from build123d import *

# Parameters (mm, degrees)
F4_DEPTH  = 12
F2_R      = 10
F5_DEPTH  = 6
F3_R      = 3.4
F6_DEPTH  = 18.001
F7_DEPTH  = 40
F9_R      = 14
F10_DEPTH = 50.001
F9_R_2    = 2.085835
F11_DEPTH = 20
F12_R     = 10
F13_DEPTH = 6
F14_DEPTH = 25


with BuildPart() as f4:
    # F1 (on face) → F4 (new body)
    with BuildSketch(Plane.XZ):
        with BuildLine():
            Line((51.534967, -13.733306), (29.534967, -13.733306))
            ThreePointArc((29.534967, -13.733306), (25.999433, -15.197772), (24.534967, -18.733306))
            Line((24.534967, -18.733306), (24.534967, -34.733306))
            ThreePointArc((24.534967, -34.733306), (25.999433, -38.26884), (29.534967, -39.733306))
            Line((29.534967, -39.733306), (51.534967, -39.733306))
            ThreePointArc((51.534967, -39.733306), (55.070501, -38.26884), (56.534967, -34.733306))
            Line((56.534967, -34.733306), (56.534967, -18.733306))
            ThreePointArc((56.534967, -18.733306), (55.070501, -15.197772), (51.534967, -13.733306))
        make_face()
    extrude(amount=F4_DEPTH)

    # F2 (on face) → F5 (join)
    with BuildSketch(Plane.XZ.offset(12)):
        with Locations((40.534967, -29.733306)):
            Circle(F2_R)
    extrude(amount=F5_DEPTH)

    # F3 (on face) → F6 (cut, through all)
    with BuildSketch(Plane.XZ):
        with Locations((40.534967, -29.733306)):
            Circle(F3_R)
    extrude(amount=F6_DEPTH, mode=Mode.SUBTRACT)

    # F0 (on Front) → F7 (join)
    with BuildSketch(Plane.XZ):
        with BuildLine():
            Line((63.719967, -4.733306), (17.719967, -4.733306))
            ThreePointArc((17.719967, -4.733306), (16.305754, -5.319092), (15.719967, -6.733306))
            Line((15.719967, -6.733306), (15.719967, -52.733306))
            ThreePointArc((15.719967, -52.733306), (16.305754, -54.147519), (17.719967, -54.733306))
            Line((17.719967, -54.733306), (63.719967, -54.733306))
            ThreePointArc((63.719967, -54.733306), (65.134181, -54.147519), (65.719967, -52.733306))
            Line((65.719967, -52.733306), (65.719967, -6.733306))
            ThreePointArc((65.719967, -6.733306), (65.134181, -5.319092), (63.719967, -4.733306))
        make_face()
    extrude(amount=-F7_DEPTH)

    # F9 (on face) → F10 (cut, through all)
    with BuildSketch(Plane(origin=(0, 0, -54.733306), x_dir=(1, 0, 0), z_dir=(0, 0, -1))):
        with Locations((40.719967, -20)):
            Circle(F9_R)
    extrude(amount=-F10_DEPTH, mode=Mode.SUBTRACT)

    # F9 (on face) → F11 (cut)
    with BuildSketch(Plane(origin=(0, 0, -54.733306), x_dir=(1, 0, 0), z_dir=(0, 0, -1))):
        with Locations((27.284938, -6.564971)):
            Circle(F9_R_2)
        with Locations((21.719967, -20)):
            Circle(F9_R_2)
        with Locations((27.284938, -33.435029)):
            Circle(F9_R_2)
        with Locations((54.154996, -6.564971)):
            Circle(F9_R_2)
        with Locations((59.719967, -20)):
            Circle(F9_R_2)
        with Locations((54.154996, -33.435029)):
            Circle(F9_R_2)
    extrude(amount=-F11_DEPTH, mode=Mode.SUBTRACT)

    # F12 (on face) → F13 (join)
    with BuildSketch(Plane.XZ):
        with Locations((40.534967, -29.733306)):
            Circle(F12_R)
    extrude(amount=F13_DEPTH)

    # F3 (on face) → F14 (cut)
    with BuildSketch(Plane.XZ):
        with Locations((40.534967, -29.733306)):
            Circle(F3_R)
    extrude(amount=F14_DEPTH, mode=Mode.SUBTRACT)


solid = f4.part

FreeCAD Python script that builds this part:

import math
import FreeCAD as App
import Part
import Sketcher
from FreeCAD import Vector
Q = App.Units.Quantity

doc = App.newDocument("Part")
body = doc.addObject("PartDesign::Body", "Body")

sketch1 = body.newObject("Sketcher::SketchObject", "Sketch")
sketch1.AttachmentSupport = (doc.getObject("XZ_Plane"), [""])
sketch1.MapMode = "FlatFace"
sketch1.addGeometry([
    Part.LineSegment(Vector(51.5, -13.7, 0), Vector(29.5, -13.7, 0)),
    Part.ArcOfCircle(Part.Circle(Vector(29.5, -18.7, 0), Vector(0, 0, 1), 5), math.radians(90), math.radians(180)),
    Part.LineSegment(Vector(24.5, -18.7, 0), Vector(24.5, -34.7, 0)),
    Part.ArcOfCircle(Part.Circle(Vector(29.5, -34.7, 0), Vector(0, 0, 1), 5), math.radians(180), math.radians(270)),
    Part.LineSegment(Vector(29.5, -39.7, 0), Vector(51.5, -39.7, 0)),
    Part.ArcOfCircle(Part.Circle(Vector(51.5, -34.7, 0), Vector(0, 0, 1), 5), math.radians(-90), math.radians(0)),
    Part.LineSegment(Vector(56.5, -34.7, 0), Vector(56.5, -18.7, 0)),
    Part.ArcOfCircle(Part.Circle(Vector(51.5, -18.7, 0), Vector(0, 0, 1), 5), math.radians(0), math.radians(90)),
], False)
sketch1.addConstraint([
    Sketcher.Constraint("Tangent", 0, 2, 1, 1),
    Sketcher.Constraint("Tangent", 1, 2, 2, 1),
    Sketcher.Constraint("Tangent", 2, 2, 3, 1),
    Sketcher.Constraint("Tangent", 3, 2, 4, 1),
    Sketcher.Constraint("Tangent", 4, 2, 5, 1),
    Sketcher.Constraint("Tangent", 5, 2, 6, 1),
    Sketcher.Constraint("Tangent", 6, 2, 7, 1),
    Sketcher.Constraint("Tangent", 7, 2, 0, 1),
    Sketcher.Constraint("Horizontal", 0),
    Sketcher.Constraint("Vertical", 2),
    Sketcher.Constraint("Horizontal", 4),
    Sketcher.Constraint("Vertical", 6),
    Sketcher.Constraint("Equal", 1, 3),
    Sketcher.Constraint("Equal", 3, 5),
    Sketcher.Constraint("Equal", 5, 7),
    Sketcher.Constraint("Radius", 1, Q("5 mm")),
    Sketcher.Constraint("DistanceX", 0, 2, 0, 1, Q("22 mm")),
    Sketcher.Constraint("DistanceY", 2, 2, 2, 1, Q("16 mm")),
    Sketcher.Constraint("DistanceX", -1, 1, 1, 3, Q("29.534967 mm")),
    Sketcher.Constraint("DistanceY", 1, 3, -1, 1, Q("18.733306 mm")),
])
pad1 = body.newObject("PartDesign::Pad", "Pad")
pad1.Profile = sketch1
pad1.Length = 12

sketch2 = body.newObject("Sketcher::SketchObject", "Sketch001")
sketch2.AttachmentSupport = (doc.getObject("XZ_Plane"), [""])
sketch2.MapMode = "FlatFace"
sketch2.AttachmentOffset = App.Placement(Vector(0, 0, 12), App.Rotation())
sketch2.addGeometry(Part.Circle(Vector(41, -30, 0), Vector(0, 0, 1), 10), False)
sketch2.addConstraint([
    Sketcher.Constraint("Diameter", 0, Q("20 mm")),
    Sketcher.Constraint("DistanceX", -1, 1, 0, 3, Q("40.534967 mm")),
    Sketcher.Constraint("DistanceY", 0, 3, -1, 1, Q("29.733306 mm")),
])
pad2 = body.newObject("PartDesign::Pad", "Pad001")
pad2.Profile = sketch2
pad2.Length = 6

sketch3 = body.newObject("Sketcher::SketchObject", "Sketch002")
sketch3.AttachmentSupport = (doc.getObject("XZ_Plane"), [""])
sketch3.MapMode = "FlatFace"
sketch3.addGeometry(Part.Circle(Vector(40.5, -29.7, 0), Vector(0, 0, 1), 3.4), False)
sketch3.addConstraint([
    Sketcher.Constraint("Diameter", 0, Q("6.8 mm")),
    Sketcher.Constraint("DistanceX", -1, 1, 0, 3, Q("40.534967 mm")),
    Sketcher.Constraint("DistanceY", 0, 3, -1, 1, Q("29.733306 mm")),
])
pocket1 = body.newObject("PartDesign::Pocket", "Pocket")
pocket1.Profile = sketch3
pocket1.Type = "ThroughAll"
pocket1.Reversed = True

sketch4 = body.newObject("Sketcher::SketchObject", "Sketch003")
sketch4.AttachmentSupport = (doc.getObject("XZ_Plane"), [""])
sketch4.MapMode = "FlatFace"
sketch4.addGeometry([
    Part.LineSegment(Vector(63.7, -4.7, 0), Vector(17.7, -4.7, 0)),
    Part.ArcOfCircle(Part.Circle(Vector(17.7, -6.7, 0), Vector(0, 0, 1), 2), math.radians(90), math.radians(180)),
    Part.LineSegment(Vector(15.7, -6.7, 0), Vector(15.7, -52.7, 0)),
    Part.ArcOfCircle(Part.Circle(Vector(17.7, -52.7, 0), Vector(0, 0, 1), 2), math.radians(-180), math.radians(-90)),
    Part.LineSegment(Vector(17.7, -54.7, 0), Vector(63.7, -54.7, 0)),
    Part.ArcOfCircle(Part.Circle(Vector(63.7, -52.7, 0), Vector(0, 0, 1), 2), math.radians(-90), math.radians(0)),
    Part.LineSegment(Vector(65.7, -52.7, 0), Vector(65.7, -6.7, 0)),
    Part.ArcOfCircle(Part.Circle(Vector(63.7, -6.7, 0), Vector(0, 0, 1), 2), math.radians(0), math.radians(90)),
], False)
sketch4.addConstraint([
    Sketcher.Constraint("Tangent", 0, 2, 1, 1),
    Sketcher.Constraint("Tangent", 1, 2, 2, 1),
    Sketcher.Constraint("Tangent", 2, 2, 3, 1),
    Sketcher.Constraint("Tangent", 3, 2, 4, 1),
    Sketcher.Constraint("Tangent", 4, 2, 5, 1),
    Sketcher.Constraint("Tangent", 5, 2, 6, 1),
    Sketcher.Constraint("Tangent", 6, 2, 7, 1),
    Sketcher.Constraint("Tangent", 7, 2, 0, 1),
    Sketcher.Constraint("Horizontal", 0),
    Sketcher.Constraint("Vertical", 2),
    Sketcher.Constraint("Horizontal", 4),
    Sketcher.Constraint("Vertical", 6),
    Sketcher.Constraint("Equal", 1, 3),
    Sketcher.Constraint("Equal", 3, 5),
    Sketcher.Constraint("Equal", 5, 7),
    Sketcher.Constraint("Equal", 4, 2),
    Sketcher.Constraint("Radius", 1, Q("2 mm")),
    Sketcher.Constraint("DistanceX", 0, 2, 0, 1, Q("46 mm")),
    Sketcher.Constraint("DistanceX", -1, 1, 3, 3, Q("17.719969 mm")),
    Sketcher.Constraint("DistanceY", 1, 3, -1, 1, Q("6.733306 mm")),
])
pad3 = body.newObject("PartDesign::Pad", "Pad002")
pad3.Profile = sketch4
pad3.Length = 40
pad3.Reversed = True

sketch5 = body.newObject("Sketcher::SketchObject", "Sketch004")
sketch5.AttachmentSupport = (doc.getObject("XY_Plane"), [""])
sketch5.MapMode = "FlatFace"
sketch5.AttachmentOffset = App.Placement(Vector(0, 0, -54.733306), App.Rotation())
sketch5.addGeometry(Part.Circle(Vector(41, 20, 0), Vector(0, 0, 1), 14), False)
sketch5.addConstraint([
    Sketcher.Constraint("Diameter", 0, Q("28 mm")),
    Sketcher.Constraint("DistanceY", -1, 1, 0, 3, Q("20 mm")),
    Sketcher.Constraint("DistanceX", -1, 1, 0, 3, Q("40.719967 mm")),
])
pocket2 = body.newObject("PartDesign::Pocket", "Pocket001")
pocket2.Profile = sketch5
pocket2.Type = "ThroughAll"
pocket2.Reversed = True

sketch6 = body.newObject("Sketcher::SketchObject", "Sketch005")
sketch6.AttachmentSupport = (doc.getObject("XY_Plane"), [""])
sketch6.MapMode = "FlatFace"
sketch6.AttachmentOffset = App.Placement(Vector(0, 0, -54.733306), App.Rotation())
sketch6.addGeometry([
    Part.Circle(Vector(27.3, 6.6, 0), Vector(0, 0, 1), 2.1),
    Part.Circle(Vector(21.7, 20, 0), Vector(0, 0, 1), 2.1),
    Part.Circle(Vector(27.3, 33.4, 0), Vector(0, 0, 1), 2.1),
    Part.Circle(Vector(54.2, 6.6, 0), Vector(0, 0, 1), 2.1),
    Part.Circle(Vector(59.7, 20, 0), Vector(0, 0, 1), 2.1),
    Part.Circle(Vector(54.2, 33.4, 0), Vector(0, 0, 1), 2.1),
], False)
sketch6.addConstraint([
    Sketcher.Constraint("Equal", 0, 1),
    Sketcher.Constraint("Equal", 1, 2),
    Sketcher.Constraint("Equal", 2, 3),
    Sketcher.Constraint("Equal", 3, 4),
    Sketcher.Constraint("Equal", 4, 5),
    Sketcher.Constraint("Horizontal", 0, 3, 3, 3),
    Sketcher.Constraint("Horizontal", 1, 3, 4, 3),
    Sketcher.Constraint("Horizontal", 2, 3, 5, 3),
    Sketcher.Constraint("Vertical", 0, 3, 2, 3),
    Sketcher.Constraint("Vertical", 3, 3, 5, 3),
    Sketcher.Constraint("DistanceY", -1, 1, 1, 3, Q("20 mm")),
    Sketcher.Constraint("DistanceX", 1, 3, 4, 3, Q("38 mm")),
    Sketcher.Constraint("Diameter", 0, Q("4.17167 mm")),
    Sketcher.Constraint("DistanceX", -1, 1, 0, 3, Q("27.284938 mm")),
    Sketcher.Constraint("DistanceY", -1, 1, 0, 3, Q("6.564971 mm")),
    Sketcher.Constraint("DistanceY", -1, 1, 2, 3, Q("33.435029 mm")),
    Sketcher.Constraint("DistanceX", 1, 3, 0, 3, Q("5.564971 mm")),
    Sketcher.Constraint("DistanceX", 1, 3, 3, 3, Q("32.435029 mm")),
])
pocket3 = body.newObject("PartDesign::Pocket", "Pocket002")
pocket3.Profile = sketch6
pocket3.Length = 20
pocket3.Reversed = True

sketch7 = body.newObject("Sketcher::SketchObject", "Sketch006")
sketch7.AttachmentSupport = (doc.getObject("XZ_Plane"), [""])
sketch7.MapMode = "FlatFace"
sketch7.addGeometry(Part.Circle(Vector(41, -30, 0), Vector(0, 0, 1), 10), False)
sketch7.addConstraint([
    Sketcher.Constraint("Diameter", 0, Q("20 mm")),
    Sketcher.Constraint("DistanceX", -1, 1, 0, 3, Q("40.534967 mm")),
    Sketcher.Constraint("DistanceY", 0, 3, -1, 1, Q("29.733306 mm")),
])
pad4 = body.newObject("PartDesign::Pad", "Pad003")
pad4.Profile = sketch7
pad4.Length = 6

sketch8 = body.newObject("Sketcher::SketchObject", "Sketch007")
sketch8.AttachmentSupport = (doc.getObject("XZ_Plane"), [""])
sketch8.MapMode = "FlatFace"
sketch8.addGeometry(Part.Circle(Vector(40.5, -29.7, 0), Vector(0, 0, 1), 3.4), False)
sketch8.addConstraint([
    Sketcher.Constraint("Diameter", 0, Q("6.8 mm")),
    Sketcher.Constraint("DistanceX", -1, 1, 0, 3, Q("40.534967 mm")),
    Sketcher.Constraint("DistanceY", 0, 3, -1, 1, Q("29.733306 mm")),
])
pocket4 = body.newObject("PartDesign::Pocket", "Pocket003")
pocket4.Profile = sketch8
pocket4.Length = 25
pocket4.Reversed = True

doc.recompute()
